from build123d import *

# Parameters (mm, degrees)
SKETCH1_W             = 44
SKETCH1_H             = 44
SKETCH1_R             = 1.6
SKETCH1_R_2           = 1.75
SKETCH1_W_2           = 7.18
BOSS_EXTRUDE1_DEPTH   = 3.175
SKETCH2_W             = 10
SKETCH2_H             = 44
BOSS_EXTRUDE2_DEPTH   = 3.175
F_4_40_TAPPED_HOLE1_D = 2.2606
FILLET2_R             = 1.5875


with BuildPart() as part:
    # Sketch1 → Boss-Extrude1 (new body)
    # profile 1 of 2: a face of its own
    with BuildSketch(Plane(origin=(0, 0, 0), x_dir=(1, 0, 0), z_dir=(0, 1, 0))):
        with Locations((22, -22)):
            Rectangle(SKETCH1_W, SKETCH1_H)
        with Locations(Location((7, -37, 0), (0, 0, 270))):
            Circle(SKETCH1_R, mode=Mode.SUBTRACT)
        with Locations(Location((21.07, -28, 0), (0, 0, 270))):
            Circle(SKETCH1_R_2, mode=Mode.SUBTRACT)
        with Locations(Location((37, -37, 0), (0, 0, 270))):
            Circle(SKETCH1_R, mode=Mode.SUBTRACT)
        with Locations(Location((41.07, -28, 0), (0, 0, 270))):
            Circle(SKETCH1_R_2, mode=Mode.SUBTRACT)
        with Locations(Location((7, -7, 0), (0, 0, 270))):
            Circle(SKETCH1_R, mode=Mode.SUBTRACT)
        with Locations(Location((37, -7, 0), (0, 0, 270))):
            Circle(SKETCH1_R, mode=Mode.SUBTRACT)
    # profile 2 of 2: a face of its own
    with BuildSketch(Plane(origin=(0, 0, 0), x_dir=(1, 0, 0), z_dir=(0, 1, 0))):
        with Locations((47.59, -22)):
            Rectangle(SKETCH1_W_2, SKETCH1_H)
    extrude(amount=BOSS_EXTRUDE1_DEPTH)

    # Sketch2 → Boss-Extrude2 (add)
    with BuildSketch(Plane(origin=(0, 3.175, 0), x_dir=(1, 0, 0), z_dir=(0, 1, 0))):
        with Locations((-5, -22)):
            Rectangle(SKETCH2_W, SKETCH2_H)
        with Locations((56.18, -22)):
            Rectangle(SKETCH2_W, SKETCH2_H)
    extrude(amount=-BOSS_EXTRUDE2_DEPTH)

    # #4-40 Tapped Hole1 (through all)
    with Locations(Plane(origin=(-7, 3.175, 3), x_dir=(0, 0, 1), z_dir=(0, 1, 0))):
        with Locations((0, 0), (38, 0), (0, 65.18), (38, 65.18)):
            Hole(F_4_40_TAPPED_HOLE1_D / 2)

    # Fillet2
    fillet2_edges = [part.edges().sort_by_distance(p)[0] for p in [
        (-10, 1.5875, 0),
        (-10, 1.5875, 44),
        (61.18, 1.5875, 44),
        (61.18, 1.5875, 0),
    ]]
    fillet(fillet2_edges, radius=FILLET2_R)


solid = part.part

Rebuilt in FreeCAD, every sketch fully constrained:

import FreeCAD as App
import Part
import Sketcher

V = App.Vector


def edges_at(feature, points):
    """Names of the edges that pass closest to the given points."""
    edges = feature.Shape.Edges
    near = lambda p: min(range(len(edges)), key=lambda i: edges[i].distToShape(Part.Vertex(*p))[0])
    return sorted({f"Edge{near(p) + 1}" for p in points})

doc = App.newDocument("Part")
body = doc.addObject("PartDesign::Body", "Body")

# Sketch on XZ plane
sketch1 = body.newObject("Sketcher::SketchObject", "Sketch")
sketch1.AttachmentSupport = (doc.getObject("XZ_Plane"), [""])
sketch1.MapMode = "FlatFace"
sketch1.addGeometry(Part.LineSegment(V(0, 0, 0), V(0, 44, 0)), False)
sketch1.addGeometry(Part.LineSegment(V(0, 44, 0), V(51.18, 44, 0)), False)
sketch1.addGeometry(Part.LineSegment(V(51.18, 44, 0), V(51.18, 0, 0)), False)
sketch1.addGeometry(Part.LineSegment(V(51.18, 0, 0), V(0, 0, 0)), False)
sketch1.addGeometry(Part.Circle(V(7, 37, 0), V(0, 0, 1), 1.6), False)
sketch1.addGeometry(Part.Circle(V(21.07, 28, 0), V(0, 0, 1), 1.75), False)
sketch1.addGeometry(Part.Circle(V(37, 37, 0), V(0, 0, 1), 1.6), False)
sketch1.addGeometry(Part.Circle(V(41.07, 28, 0), V(0, 0, 1), 1.75), False)
sketch1.addGeometry(Part.Circle(V(7, 7, 0), V(0, 0, 1), 1.6), False)
sketch1.addGeometry(Part.Circle(V(37, 7, 0), V(0, 0, 1), 1.6), False)
sketch1.addConstraint(Sketcher.Constraint("Coincident", 0, 2, 1, 1))
sketch1.addConstraint(Sketcher.Constraint("Coincident", 1, 2, 2, 1))
sketch1.addConstraint(Sketcher.Constraint("Coincident", 2, 2, 3, 1))
sketch1.addConstraint(Sketcher.Constraint("Coincident", 3, 2, 0, 1))
sketch1.addConstraint(Sketcher.Constraint("Vertical", 0))
sketch1.addConstraint(Sketcher.Constraint("Horizontal", 1))
sketch1.addConstraint(Sketcher.Constraint("Vertical", 2))
sketch1.addConstraint(Sketcher.Constraint("Horizontal", 3))
sketch1.addConstraint(Sketcher.Constraint("Coincident", 3, 2, -1, 1))
sketch1.addConstraint(Sketcher.Constraint("Equal", 4, 6))
sketch1.addConstraint(Sketcher.Constraint("Equal", 5, 7))
sketch1.addConstraint(Sketcher.Constraint("Equal", 6, 8))
sketch1.addConstraint(Sketcher.Constraint("Equal", 8, 9))
sketch1.addConstraint(Sketcher.Constraint("Horizontal", 4, 3, 6, 3))
sketch1.addConstraint(Sketcher.Constraint("Horizontal", 5, 3, 7, 3))
sketch1.addConstraint(Sketcher.Constraint("Horizontal", 8, 3, 9, 3))
sketch1.addConstraint(Sketcher.Constraint("Vertical", 4, 3, 8, 3))
sketch1.addConstraint(Sketcher.Constraint("Vertical", 6, 3, 9, 3))
sketch1.addConstraint(Sketcher.Constraint("Diameter", 4, 3.2))
sketch1.addConstraint(Sketcher.Constraint("Diameter", 5, 3.5))
sketch1.addConstraint(Sketcher.Constraint("DistanceY", 0, 1, 0, 2, 44.0))
sketch1.addConstraint(Sketcher.Constraint("DistanceX", -1, 1, 4, 3, 7.0))
sketch1.addConstraint(Sketcher.Constraint("DistanceY", -1, 1, 4, 3, 37.0))
sketch1.addConstraint(Sketcher.Constraint("DistanceY", -1, 1, 5, 3, 28.0))
sketch1.addConstraint(Sketcher.Constraint("DistanceX", -1, 1, 6, 3, 37.0))
sketch1.addConstraint(Sketcher.Constraint("DistanceY", -1, 1, 8, 3, 7.0))
sketch1.addConstraint(Sketcher.Constraint("DistanceX", 5, 3, 7, 3, 20.0))
sketch1.addConstraint(Sketcher.Constraint("DistanceX", 1, 1, 1, 2, 51.18))
sketch1.addConstraint(Sketcher.Constraint("DistanceX", -1, 1, 5, 3, 21.07))
pad1 = body.newObject("PartDesign::Pad", "Pad")
pad1.Profile = sketch1
pad1.Length = 3.175
pad1.Reversed = True

# Sketch on XZ plane
sketch2 = body.newObject("Sketcher::SketchObject", "Sketch001")
sketch2.AttachmentSupport = (doc.getObject("XZ_Plane"), [""])
sketch2.MapMode = "FlatFace"
sketch2.AttachmentOffset = App.Placement(V(0, 0, -3.175), App.Rotation())
sketch2.addGeometry(Part.LineSegment(V(-10, 0, 0), V(-10, 44, 0)), False)
sketch2.addGeometry(Part.LineSegment(V(-10, 44, 0), V(0, 44, 0)), False)
sketch2.addGeometry(Part.LineSegment(V(0, 44, 0), V(0, 0, 0)), False)
sketch2.addGeometry(Part.LineSegment(V(0, 0, 0), V(-10, 0, 0)), False)
sketch2.addGeometry(Part.LineSegment(V(51.18, 0, 0), V(51.18, 44, 0)), False)
sketch2.addGeometry(Part.LineSegment(V(51.18, 44, 0), V(61.18, 44, 0)), False)
sketch2.addGeometry(Part.LineSegment(V(61.18, 44, 0), V(61.18, 0, 0)), False)
sketch2.addGeometry(Part.LineSegment(V(61.18, 0, 0), V(51.18, 0, 0)), False)
sketch2.addConstraint(Sketcher.Constraint("Coincident", 0, 2, 1, 1))
sketch2.addConstraint(Sketcher.Constraint("Coincident", 1, 2, 2, 1))
sketch2.addConstraint(Sketcher.Constraint("Coincident", 2, 2, 3, 1))
sketch2.addConstraint(Sketcher.Constraint("Coincident", 3, 2, 0, 1))
sketch2.addConstraint(Sketcher.Constraint("Coincident", 4, 2, 5, 1))
sketch2.addConstraint(Sketcher.Constraint("Coincident", 5, 2, 6, 1))
sketch2.addConstraint(Sketcher.Constraint("Coincident", 6, 2, 7, 1))
sketch2.addConstraint(Sketcher.Constraint("Coincident", 7, 2, 4, 1))
sketch2.addConstraint(Sketcher.Constraint("Vertical", 0))
sketch2.addConstraint(Sketcher.Constraint("Horizontal", 1))
sketch2.addConstraint(Sketcher.Constraint("Vertical", 2))
sketch2.addConstraint(Sketcher.Constraint("Horizontal", 3))
sketch2.addConstraint(Sketcher.Constraint("Vertical", 4))
sketch2.addConstraint(Sketcher.Constraint("Horizontal", 5))
sketch2.addConstraint(Sketcher.Constraint("Vertical", 6))
sketch2.addConstraint(Sketcher.Constraint("Horizontal", 7))
sketch2.addConstraint(Sketcher.Constraint("Coincident", 2, 2, -1, 1))
sketch2.addConstraint(Sketcher.Constraint("PointOnObject", 6, 2, -1))
sketch2.addConstraint(Sketcher.Constraint("Horizontal", 1, 2, 4, 2))
sketch2.addConstraint(Sketcher.Constraint("Equal", 3, 5))
sketch2.addConstraint(Sketcher.Constraint("DistanceX", 1, 1, 1, 2, 10.0))
sketch2.addConstraint(Sketcher.Constraint("DistanceY", 0, 1, 0, 2, 44.0))
sketch2.addConstraint(Sketcher.Constraint("DistanceX", -1, 1, 4, 2, 51.18))
pad2 = body.newObject("PartDesign::Pad", "Pad001")
pad2.Profile = sketch2
pad2.Length = 3.175

# Sketch on XZ plane
sketch3 = body.newObject("Sketcher::SketchObject", "Sketch002")
sketch3.AttachmentSupport = (doc.getObject("XZ_Plane"), [""])
sketch3.MapMode = "FlatFace"
sketch3.AttachmentOffset = App.Placement(V(0, 0, -3.175), App.Rotation())
sketch3.addGeometry(Part.Circle(V(-7, 3, 0), V(0, 0, 1), 1.1303), False)
sketch3.addGeometry(Part.Circle(V(-7, 41, 0), V(0, 0, 1), 1.1303), False)
sketch3.addGeometry(Part.Circle(V(58.18, 3, 0), V(0, 0, 1), 1.1303), False)
sketch3.addGeometry(Part.Circle(V(58.18, 41, 0), V(0, 0, 1), 1.1303), False)
sketch3.addConstraint(Sketcher.Constraint("Equal", 0, 1))
sketch3.addConstraint(Sketcher.Constraint("Equal", 1, 2))
sketch3.addConstraint(Sketcher.Constraint("Equal", 2, 3))
sketch3.addConstraint(Sketcher.Constraint("Horizontal", 0, 3, 2, 3))
sketch3.addConstraint(Sketcher.Constraint("Horizontal", 1, 3, 3, 3))
sketch3.addConstraint(Sketcher.Constraint("Vertical", 0, 3, 1, 3))
sketch3.addConstraint(Sketcher.Constraint("Vertical", 2, 3, 3, 3))
sketch3.addConstraint(Sketcher.Constraint("DistanceX", 0, 3, -1, 1, 7.0))
sketch3.addConstraint(Sketcher.Constraint("DistanceY", -1, 1, 0, 3, 3.0))
sketch3.addConstraint(Sketcher.Constraint("DistanceY", -1, 1, 1, 3, 41.0))
sketch3.addConstraint(Sketcher.Constraint("Diameter", 0, 2.2606))
sketch3.addConstraint(Sketcher.Constraint("DistanceX", -1, 1, 2, 3, 58.18))
doc.recompute()
hole = body.newObject("PartDesign::Hole", "Hole")
hole.Profile = sketch3
hole.ThreadType = "None"
hole.Diameter = 2.2606
hole.DepthType = "ThroughAll"
hole.Reversed = True
doc.recompute()

fillet = body.newObject("PartDesign::Fillet", "Fillet")
fillet.Base = (hole, edges_at(hole, [
    (-10, 1.587, 0),
    (-10, 1.587, 44),
    (61.18, 1.587, 44),
    (61.18, 1.587, 0),
]))
fillet.Radius = 1.5875

doc.recompute()
